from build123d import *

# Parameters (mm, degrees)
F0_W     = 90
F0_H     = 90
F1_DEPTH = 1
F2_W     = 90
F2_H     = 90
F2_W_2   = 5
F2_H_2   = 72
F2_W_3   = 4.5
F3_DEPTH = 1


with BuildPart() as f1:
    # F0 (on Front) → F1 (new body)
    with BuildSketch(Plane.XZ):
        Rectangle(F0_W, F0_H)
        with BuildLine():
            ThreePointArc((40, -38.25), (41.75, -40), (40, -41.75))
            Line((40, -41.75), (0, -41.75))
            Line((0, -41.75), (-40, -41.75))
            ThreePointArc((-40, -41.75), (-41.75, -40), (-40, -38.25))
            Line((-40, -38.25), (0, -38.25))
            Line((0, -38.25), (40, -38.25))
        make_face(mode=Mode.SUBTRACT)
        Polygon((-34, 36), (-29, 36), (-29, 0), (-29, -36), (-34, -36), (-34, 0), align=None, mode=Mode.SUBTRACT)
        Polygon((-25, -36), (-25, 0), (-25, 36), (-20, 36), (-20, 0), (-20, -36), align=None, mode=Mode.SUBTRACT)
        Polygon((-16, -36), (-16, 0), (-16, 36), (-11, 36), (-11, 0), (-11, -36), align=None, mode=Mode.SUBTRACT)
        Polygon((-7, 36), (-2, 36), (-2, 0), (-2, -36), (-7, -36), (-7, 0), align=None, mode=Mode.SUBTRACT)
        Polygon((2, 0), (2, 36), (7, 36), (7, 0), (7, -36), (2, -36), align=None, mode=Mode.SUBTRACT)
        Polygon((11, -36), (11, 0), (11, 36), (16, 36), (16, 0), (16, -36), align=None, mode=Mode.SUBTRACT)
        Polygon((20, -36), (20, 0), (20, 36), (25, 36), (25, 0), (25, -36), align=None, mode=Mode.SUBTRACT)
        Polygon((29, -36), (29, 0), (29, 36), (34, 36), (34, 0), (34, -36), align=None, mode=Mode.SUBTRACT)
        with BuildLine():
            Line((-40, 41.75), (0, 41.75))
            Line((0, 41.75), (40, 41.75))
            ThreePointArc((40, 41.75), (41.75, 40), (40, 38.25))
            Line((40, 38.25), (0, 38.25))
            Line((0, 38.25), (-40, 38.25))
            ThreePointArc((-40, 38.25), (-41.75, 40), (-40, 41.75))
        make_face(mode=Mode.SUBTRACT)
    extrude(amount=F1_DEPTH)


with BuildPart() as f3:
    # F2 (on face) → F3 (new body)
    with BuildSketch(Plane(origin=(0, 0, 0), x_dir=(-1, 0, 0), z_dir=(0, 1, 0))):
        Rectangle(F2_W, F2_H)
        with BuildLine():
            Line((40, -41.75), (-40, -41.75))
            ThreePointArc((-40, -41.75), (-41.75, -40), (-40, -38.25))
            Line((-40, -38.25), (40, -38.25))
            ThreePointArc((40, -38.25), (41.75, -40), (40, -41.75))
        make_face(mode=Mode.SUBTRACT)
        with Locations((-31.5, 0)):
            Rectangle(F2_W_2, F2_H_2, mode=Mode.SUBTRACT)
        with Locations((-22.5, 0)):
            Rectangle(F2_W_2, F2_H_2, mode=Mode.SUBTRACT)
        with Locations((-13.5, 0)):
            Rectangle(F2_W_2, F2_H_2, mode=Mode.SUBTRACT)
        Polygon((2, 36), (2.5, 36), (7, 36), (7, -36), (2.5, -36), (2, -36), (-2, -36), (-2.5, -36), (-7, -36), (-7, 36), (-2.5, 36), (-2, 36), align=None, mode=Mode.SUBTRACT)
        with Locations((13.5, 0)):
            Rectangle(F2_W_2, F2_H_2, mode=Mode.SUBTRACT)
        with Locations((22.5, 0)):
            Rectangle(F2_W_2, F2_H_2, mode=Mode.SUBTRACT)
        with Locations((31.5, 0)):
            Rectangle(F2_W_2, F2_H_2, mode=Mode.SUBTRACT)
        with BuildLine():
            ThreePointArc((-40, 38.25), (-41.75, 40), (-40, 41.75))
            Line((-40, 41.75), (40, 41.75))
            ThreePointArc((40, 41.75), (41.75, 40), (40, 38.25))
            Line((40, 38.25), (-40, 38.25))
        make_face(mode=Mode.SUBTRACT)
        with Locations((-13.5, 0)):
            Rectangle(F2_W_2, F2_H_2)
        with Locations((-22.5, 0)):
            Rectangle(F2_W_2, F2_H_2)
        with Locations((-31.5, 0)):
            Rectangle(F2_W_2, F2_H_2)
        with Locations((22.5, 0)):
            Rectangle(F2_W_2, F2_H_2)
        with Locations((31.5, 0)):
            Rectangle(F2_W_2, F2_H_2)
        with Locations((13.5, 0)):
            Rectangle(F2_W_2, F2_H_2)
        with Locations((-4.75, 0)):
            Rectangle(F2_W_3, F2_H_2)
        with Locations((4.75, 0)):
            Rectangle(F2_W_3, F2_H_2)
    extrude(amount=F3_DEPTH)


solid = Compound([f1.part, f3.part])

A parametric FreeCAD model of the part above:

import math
import FreeCAD as App
import Part
import Sketcher


def add_polygon(sketch, points):
    """Adds a closed chain of lines whose ends are joined by coincident constraints."""
    first, n = sketch.GeometryCount, len(points)
    for a, b in zip(points, points[1:] + points[:1]):
        sketch.addGeometry(Part.LineSegment(App.Vector(*a, 0), App.Vector(*b, 0)), False)
    for i in range(n):
        sketch.addConstraint(Sketcher.Constraint("Coincident", first + i, 2, first + (i + 1) % n, 1))

doc = App.newDocument("Part")
body = doc.addObject("PartDesign::Body", "Body")

sketch1 = body.newObject("Sketcher::SketchObject", "Sketch")
sketch1.AttachmentSupport = (doc.getObject("XZ_Plane"), [""])
sketch1.MapMode = "FlatFace"
add_polygon(sketch1, [(-45, 45), (-45, -45), (45, -45), (45, 45)])
sketch1.addGeometry(Part.LineSegment(App.Vector(-40, -38.2, 0), App.Vector(40, -38.2, 0)), False)
sketch1.addGeometry(Part.ArcOfCircle(Part.Circle(App.Vector(40, -40, 0), App.Vector(0, 0, 1), 1.8), math.radians(-90), math.radians(90)), False)
sketch1.addGeometry(Part.LineSegment(App.Vector(40, -41.8, 0), App.Vector(-40, -41.8, 0)), False)
sketch1.addGeometry(Part.ArcOfCircle(Part.Circle(App.Vector(-40, -40, 0), App.Vector(0, 0, 1), 1.8), math.radians(90), math.radians(270)), False)
add_polygon(sketch1, [(-34, -36), (-34, 36), (-29, 36), (-29, -36)])
add_polygon(sketch1, [(-20, -36), (-25, -36), (-25, 36), (-20, 36)])
add_polygon(sketch1, [(-11, -36), (-16, -36), (-16, 36), (-11, 36)])
add_polygon(sketch1, [(-7, -36), (-7, 36), (-2, 36), (-2, -36)])
add_polygon(sketch1, [(2, -36), (2, 36), (7, 36), (7, -36)])
add_polygon(sketch1, [(16, -36), (11, -36), (11, 36), (16, 36)])
add_polygon(sketch1, [(25, -36), (20, -36), (20, 36), (25, 36)])
add_polygon(sketch1, [(34, -36), (29, -36), (29, 36), (34, 36)])
sketch1.addGeometry(Part.ArcOfCircle(Part.Circle(App.Vector(-40, 40, 0), App.Vector(0, 0, 1), 1.8), math.radians(90), math.radians(270)), False)
sketch1.addGeometry(Part.LineSegment(App.Vector(-40, 41.8, 0), App.Vector(40, 41.8, 0)), False)
sketch1.addGeometry(Part.ArcOfCircle(Part.Circle(App.Vector(40, 40, 0), App.Vector(0, 0, 1), 1.8), math.radians(-90), math.radians(90)), False)
sketch1.addGeometry(Part.LineSegment(App.Vector(40, 38.2, 0), App.Vector(-40, 38.2, 0)), False)
sketch1.addConstraint([
    Sketcher.Constraint("Tangent", 4, 2, 5, 2),
    Sketcher.Constraint("Tangent", 5, 1, 6, 1),
    Sketcher.Constraint("Tangent", 6, 2, 7, 2),
    Sketcher.Constraint("Tangent", 7, 1, 4, 1),
    Sketcher.Constraint("Tangent", 40, 1, 41, 1),
    Sketcher.Constraint("Tangent", 41, 2, 42, 2),
    Sketcher.Constraint("Tangent", 42, 1, 43, 1),
    Sketcher.Constraint("Tangent", 43, 2, 40, 2),
    Sketcher.Constraint("Vertical", 0),
    Sketcher.Constraint("Horizontal", 1),
    Sketcher.Constraint("Vertical", 2),
    Sketcher.Constraint("Horizontal", 3),
    Sketcher.Constraint("Horizontal", 4),
    Sketcher.Constraint("Horizontal", 6),
    Sketcher.Constraint("Vertical", 8),
    Sketcher.Constraint("Horizontal", 9),
    Sketcher.Constraint("Vertical", 10),
    Sketcher.Constraint("Horizontal", 11),
    Sketcher.Constraint("Horizontal", 12),
    Sketcher.Constraint("Vertical", 13),
    Sketcher.Constraint("Horizontal", 14),
    Sketcher.Constraint("Vertical", 15),
    Sketcher.Constraint("Horizontal", 16),
    Sketcher.Constraint("Vertical", 17),
    Sketcher.Constraint("Horizontal", 18),
    Sketcher.Constraint("Vertical", 19),
    Sketcher.Constraint("Vertical", 20),
    Sketcher.Constraint("Horizontal", 21),
    Sketcher.Constraint("Vertical", 22),
    Sketcher.Constraint("Horizontal", 23),
    Sketcher.Constraint("Vertical", 24),
    Sketcher.Constraint("Horizontal", 25),
    Sketcher.Constraint("Vertical", 26),
    Sketcher.Constraint("Horizontal", 27),
    Sketcher.Constraint("Horizontal", 28),
    Sketcher.Constraint("Vertical", 29),
    Sketcher.Constraint("Horizontal", 30),
    Sketcher.Constraint("Vertical", 31),
    Sketcher.Constraint("Horizontal", 32),
    Sketcher.Constraint("Vertical", 33),
    Sketcher.Constraint("Horizontal", 34),
    Sketcher.Constraint("Vertical", 35),
    Sketcher.Constraint("Horizontal", 36),
    Sketcher.Constraint("Vertical", 37),
    Sketcher.Constraint("Horizontal", 38),
    Sketcher.Constraint("Vertical", 39),
    Sketcher.Constraint("Horizontal", 41),
    Sketcher.Constraint("Horizontal", 43),
    Sketcher.Constraint("Equal", 7, 40),
    Sketcher.Constraint("Symmetric", 5, 3, 40, 3, -1, 1),
    Sketcher.Constraint("Symmetric", 0, 2, 2, 2, -1, 1),
    Sketcher.Constraint("Symmetric", 22, 2, 24, 2, -1, 1),
    Sketcher.Constraint("Symmetric", 20, 2, 26, 2, -1, 1),
    Sketcher.Constraint("Symmetric", 18, 2, 28, 2, -1, 1),
    Sketcher.Constraint("Symmetric", 16, 2, 30, 2, -1, 1),
    Sketcher.Constraint("Symmetric", 14, 2, 32, 2, -1, 1),
    Sketcher.Constraint("Symmetric", 12, 2, 34, 2, -1, 1),
    Sketcher.Constraint("Symmetric", 9, 2, 36, 2, -1, 1),
    Sketcher.Constraint("Symmetric", 11, 2, 38, 2, -1, 1),
    Sketcher.Constraint("Horizontal", 11, 2, 12, 2),
    Sketcher.Constraint("Horizontal", 9, 2, 13, 2),
    Sketcher.Constraint("Horizontal", 15, 2, 16, 2),
    Sketcher.Constraint("Horizontal", 14, 2, 17, 2),
    Sketcher.Constraint("Horizontal", 18, 2, 20, 2),
    Sketcher.Constraint("Horizontal", 19, 2, 22, 2),
    Sketcher.Constraint("Horizontal", 21, 2, 24, 2),
    Sketcher.Constraint("Vertical", 7, 3, 40, 3),
    Sketcher.Constraint("Vertical", 5, 3, 42, 3),
    Sketcher.Constraint("Equal", 11, 12),
    Sketcher.Constraint("Equal", 14, 16),
    Sketcher.Constraint("Equal", 18, 21),
    Sketcher.Constraint("Equal", 3, 0),
    Sketcher.Constraint("DistanceX", 1, 1, 1, 2, 90.0),
    Sketcher.Constraint("DistanceX", 4, 1, 4, 2, 80.0),
    Sketcher.Constraint("DistanceX", 9, 1, 9, 2, 5.0),
    Sketcher.Constraint("DistanceY", 8, 1, 8, 2, 72.0),
    Sketcher.Constraint("Radius", 5, 1.75),
    Sketcher.Constraint("DistanceY", 5, 3, -1, 1, 40.0),
    Sketcher.Constraint("DistanceX", 8, 2, -1, 1, 34.0),
    Sketcher.Constraint("DistanceX", 12, 2, -1, 1, 25.0),
    Sketcher.Constraint("DistanceX", 16, 2, -1, 1, 16.0),
    Sketcher.Constraint("DistanceX", 20, 2, -1, 1, 7.0),
])
pad1 = body.newObject("PartDesign::Pad", "Pad")
pad1.Profile = sketch1
pad1.Length = 1
body2 = doc.addObject("PartDesign::Body", "Body001")

sketch2 = body2.newObject("Sketcher::SketchObject", "Sketch001")
sketch2.AttachmentSupport = (doc.getObject("XZ_Plane001"), [""])
sketch2.MapMode = "FlatFace"
add_polygon(sketch2, [(45, 45), (45, -45), (-45, -45), (-45, 45)])
sketch2.addGeometry(Part.ArcOfCircle(Part.Circle(App.Vector(-40, -40, 0), App.Vector(0, 0, 1), 1.8), math.radians(90), math.radians(270)), False)
sketch2.addGeometry(Part.LineSegment(App.Vector(-40, -41.8, 0), App.Vector(40, -41.8, 0)), False)
sketch2.addGeometry(Part.ArcOfCircle(Part.Circle(App.Vector(40, -40, 0), App.Vector(0, 0, 1), 1.8), math.radians(-90), math.radians(90)), False)
sketch2.addGeometry(Part.LineSegment(App.Vector(40, -38.2, 0), App.Vector(-40, -38.2, 0)), False)
add_polygon(sketch2, [(2.5, 36), (-2.5, 36), (-2.5, -36), (2.5, -36)])
sketch2.addGeometry(Part.LineSegment(App.Vector(-40, 38.2, 0), App.Vector(40, 38.2, 0)), False)
sketch2.addGeometry(Part.ArcOfCircle(Part.Circle(App.Vector(40, 40, 0), App.Vector(0, 0, 1), 1.8), math.radians(-90), math.radians(90)), False)
sketch2.addGeometry(Part.LineSegment(App.Vector(40, 41.8, 0), App.Vector(-40, 41.8, 0)), False)
sketch2.addGeometry(Part.ArcOfCircle(Part.Circle(App.Vector(-40, 40, 0), App.Vector(0, 0, 1), 1.8), math.radians(90), math.radians(270)), False)
sketch2.addConstraint([
    Sketcher.Constraint("Tangent", 4, 2, 5, 1),
    Sketcher.Constraint("Tangent", 5, 2, 6, 1),
    Sketcher.Constraint("Tangent", 6, 2, 7, 1),
    Sketcher.Constraint("Tangent", 7, 2, 4, 1),
    Sketcher.Constraint("Tangent", 12, 2, 13, 1),
    Sketcher.Constraint("Tangent", 13, 2, 14, 1),
    Sketcher.Constraint("Tangent", 14, 2, 15, 1),
    Sketcher.Constraint("Tangent", 15, 2, 12, 1),
    Sketcher.Constraint("Vertical", 0),
    Sketcher.Constraint("Horizontal", 1),
    Sketcher.Constraint("Vertical", 2),
    Sketcher.Constraint("Horizontal", 3),
    Sketcher.Constraint("Horizontal", 5),
    Sketcher.Constraint("Horizontal", 7),
    Sketcher.Constraint("Horizontal", 8),
    Sketcher.Constraint("Vertical", 9),
    Sketcher.Constraint("Horizontal", 10),
    Sketcher.Constraint("Vertical", 11),
    Sketcher.Constraint("Horizontal", 12),
    Sketcher.Constraint("Horizontal", 14),
    Sketcher.Constraint("Equal", 6, 13),
    Sketcher.Constraint("Symmetric", 4, 3, 13, 3, -1, 1),
    Sketcher.Constraint("Symmetric", 0, 2, 2, 2, -1, 1),
    Sketcher.Constraint("Symmetric", 8, 2, 10, 2, -1, 1),
    Sketcher.Constraint("Vertical", 6, 3, 13, 3),
    Sketcher.Constraint("Vertical", 4, 3, 15, 3),
    Sketcher.Constraint("Equal", 3, 0),
    Sketcher.Constraint("DistanceX", 1, 2, 1, 1, 90.0),
    Sketcher.Constraint("DistanceX", 5, 1, 5, 2, 80.0),
    Sketcher.Constraint("DistanceX", 8, 2, 8, 1, 5.0),
    Sketcher.Constraint("DistanceY", 9, 2, 9, 1, 72.0),
    Sketcher.Constraint("Radius", 4, 1.75),
    Sketcher.Constraint("DistanceY", 4, 3, -1, 1, 40.0),
])
pad2 = body2.newObject("PartDesign::Pad", "Pad001")
pad2.Profile = sketch2
pad2.Length = 1
pad2.Reversed = True

doc.recompute()
